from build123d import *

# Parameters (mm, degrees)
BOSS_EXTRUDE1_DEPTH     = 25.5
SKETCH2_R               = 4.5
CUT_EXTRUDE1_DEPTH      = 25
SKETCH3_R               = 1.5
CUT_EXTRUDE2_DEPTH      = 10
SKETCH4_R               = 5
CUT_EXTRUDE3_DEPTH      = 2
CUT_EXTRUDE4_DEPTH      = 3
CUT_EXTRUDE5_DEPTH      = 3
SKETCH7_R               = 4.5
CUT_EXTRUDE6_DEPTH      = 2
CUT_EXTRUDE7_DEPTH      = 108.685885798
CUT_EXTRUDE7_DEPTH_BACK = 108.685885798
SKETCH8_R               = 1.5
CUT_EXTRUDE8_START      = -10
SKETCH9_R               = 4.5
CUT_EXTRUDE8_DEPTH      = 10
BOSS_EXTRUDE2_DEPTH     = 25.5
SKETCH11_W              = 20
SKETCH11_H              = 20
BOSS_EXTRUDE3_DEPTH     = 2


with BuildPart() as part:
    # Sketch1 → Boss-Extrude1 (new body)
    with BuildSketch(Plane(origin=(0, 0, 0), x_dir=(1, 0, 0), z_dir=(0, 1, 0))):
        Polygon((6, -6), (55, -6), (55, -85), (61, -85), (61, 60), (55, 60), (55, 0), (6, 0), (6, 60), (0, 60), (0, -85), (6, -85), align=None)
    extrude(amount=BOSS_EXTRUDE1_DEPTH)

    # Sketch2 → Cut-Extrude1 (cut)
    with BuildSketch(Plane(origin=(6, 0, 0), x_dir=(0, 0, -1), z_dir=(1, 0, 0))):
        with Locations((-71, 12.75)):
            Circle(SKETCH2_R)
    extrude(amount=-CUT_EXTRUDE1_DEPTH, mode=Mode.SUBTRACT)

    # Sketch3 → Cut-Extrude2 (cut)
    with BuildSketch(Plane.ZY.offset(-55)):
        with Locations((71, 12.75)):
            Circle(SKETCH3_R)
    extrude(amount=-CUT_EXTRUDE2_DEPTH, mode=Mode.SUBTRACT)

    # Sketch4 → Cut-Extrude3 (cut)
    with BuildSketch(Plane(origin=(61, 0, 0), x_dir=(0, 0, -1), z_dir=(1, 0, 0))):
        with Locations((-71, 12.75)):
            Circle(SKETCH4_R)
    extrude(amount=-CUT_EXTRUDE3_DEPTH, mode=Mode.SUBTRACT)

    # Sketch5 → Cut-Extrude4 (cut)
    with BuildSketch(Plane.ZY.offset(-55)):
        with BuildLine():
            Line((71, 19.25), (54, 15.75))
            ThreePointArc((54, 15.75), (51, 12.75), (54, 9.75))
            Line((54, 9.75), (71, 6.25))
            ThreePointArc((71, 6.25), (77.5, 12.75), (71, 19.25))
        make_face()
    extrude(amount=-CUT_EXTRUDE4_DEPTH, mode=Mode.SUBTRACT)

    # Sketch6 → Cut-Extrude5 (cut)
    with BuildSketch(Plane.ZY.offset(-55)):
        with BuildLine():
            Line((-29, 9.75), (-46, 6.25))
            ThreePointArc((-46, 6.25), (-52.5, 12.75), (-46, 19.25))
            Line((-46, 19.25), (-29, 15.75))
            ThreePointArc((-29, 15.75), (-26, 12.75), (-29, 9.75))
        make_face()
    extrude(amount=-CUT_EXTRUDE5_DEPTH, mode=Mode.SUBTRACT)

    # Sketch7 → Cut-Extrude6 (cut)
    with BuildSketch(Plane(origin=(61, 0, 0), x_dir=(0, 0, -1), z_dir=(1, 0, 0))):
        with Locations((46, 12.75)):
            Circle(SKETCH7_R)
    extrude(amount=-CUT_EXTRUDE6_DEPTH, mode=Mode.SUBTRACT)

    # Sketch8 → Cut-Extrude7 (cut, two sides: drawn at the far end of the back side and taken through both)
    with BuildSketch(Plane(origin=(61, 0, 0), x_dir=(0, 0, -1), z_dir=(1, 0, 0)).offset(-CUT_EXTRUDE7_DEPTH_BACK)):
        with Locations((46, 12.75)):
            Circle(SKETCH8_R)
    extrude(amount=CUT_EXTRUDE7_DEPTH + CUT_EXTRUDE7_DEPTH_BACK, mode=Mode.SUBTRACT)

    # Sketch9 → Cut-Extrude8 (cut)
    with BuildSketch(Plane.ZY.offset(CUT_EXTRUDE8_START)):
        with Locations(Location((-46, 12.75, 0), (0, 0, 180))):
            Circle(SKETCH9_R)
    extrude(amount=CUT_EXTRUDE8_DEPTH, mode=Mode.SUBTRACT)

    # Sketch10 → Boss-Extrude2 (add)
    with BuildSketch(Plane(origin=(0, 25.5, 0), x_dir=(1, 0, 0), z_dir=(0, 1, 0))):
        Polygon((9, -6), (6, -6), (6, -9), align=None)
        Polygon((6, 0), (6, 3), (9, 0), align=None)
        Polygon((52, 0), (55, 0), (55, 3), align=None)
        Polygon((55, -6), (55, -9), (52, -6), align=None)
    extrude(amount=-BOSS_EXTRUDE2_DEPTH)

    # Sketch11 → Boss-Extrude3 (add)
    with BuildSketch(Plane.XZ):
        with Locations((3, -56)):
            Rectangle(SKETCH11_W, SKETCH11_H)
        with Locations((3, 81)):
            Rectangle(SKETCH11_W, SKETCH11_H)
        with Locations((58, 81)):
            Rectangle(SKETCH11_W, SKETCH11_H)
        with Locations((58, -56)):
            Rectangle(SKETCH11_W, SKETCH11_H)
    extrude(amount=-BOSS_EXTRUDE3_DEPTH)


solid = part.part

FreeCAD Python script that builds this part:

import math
import FreeCAD as App
import Part
import Sketcher

V = App.Vector
Q = App.Units.Quantity

doc = App.newDocument("Part")
body = doc.addObject("PartDesign::Body", "Body")

sketch1 = body.newObject("Sketcher::SketchObject", "Sketch")
sketch1.AttachmentSupport = (doc.getObject("XZ_Plane"), [""])
sketch1.MapMode = "FlatFace"
sketch1.addGeometry([
    Part.LineSegment(V(6, 6, 0), V(55, 6, 0)),
    Part.LineSegment(V(55, 6, 0), V(55, 85, 0)),
    Part.LineSegment(V(55, 85, 0), V(61, 85, 0)),
    Part.LineSegment(V(61, 85, 0), V(61, -60, 0)),
    Part.LineSegment(V(61, -60, 0), V(55, -60, 0)),
    Part.LineSegment(V(55, -60, 0), V(55, 0, 0)),
    Part.LineSegment(V(55, 0, 0), V(6, 0, 0)),
    Part.LineSegment(V(6, 0, 0), V(6, -60, 0)),
    Part.LineSegment(V(6, -60, 0), V(0, -60, 0)),
    Part.LineSegment(V(0, -60, 0), V(0, 85, 0)),
    Part.LineSegment(V(0, 85, 0), V(6, 85, 0)),
    Part.LineSegment(V(6, 85, 0), V(6, 6, 0)),
], False)
sketch1.addConstraint([
    Sketcher.Constraint("Coincident", 0, 2, 1, 1),
    Sketcher.Constraint("Coincident", 1, 2, 2, 1),
    Sketcher.Constraint("Coincident", 2, 2, 3, 1),
    Sketcher.Constraint("Coincident", 3, 2, 4, 1),
    Sketcher.Constraint("Coincident", 4, 2, 5, 1),
    Sketcher.Constraint("Coincident", 5, 2, 6, 1),
    Sketcher.Constraint("Coincident", 6, 2, 7, 1),
    Sketcher.Constraint("Coincident", 7, 2, 8, 1),
    Sketcher.Constraint("Coincident", 8, 2, 9, 1),
    Sketcher.Constraint("Coincident", 9, 2, 10, 1),
    Sketcher.Constraint("Coincident", 10, 2, 11, 1),
    Sketcher.Constraint("Coincident", 11, 2, 0, 1),
    Sketcher.Constraint("Horizontal", 0),
    Sketcher.Constraint("Vertical", 1),
    Sketcher.Constraint("Horizontal", 2),
    Sketcher.Constraint("Vertical", 3),
    Sketcher.Constraint("Horizontal", 4),
    Sketcher.Constraint("Vertical", 5),
    Sketcher.Constraint("Horizontal", 6),
    Sketcher.Constraint("Vertical", 7),
    Sketcher.Constraint("Horizontal", 8),
    Sketcher.Constraint("Vertical", 9),
    Sketcher.Constraint("Horizontal", 10),
    Sketcher.Constraint("Vertical", 11),
    Sketcher.Constraint("PointOnObject", 5, 2, -1),
    Sketcher.Constraint("PointOnObject", 8, 2, -2),
    Sketcher.Constraint("Horizontal", 4, 2, 7, 2),
    Sketcher.Constraint("Horizontal", 2, 2, 9, 2),
    Sketcher.Constraint("Vertical", 1, 2, 4, 2),
    Sketcher.Constraint("Vertical", 7, 2, 10, 2),
    Sketcher.Constraint("Equal", 4, 8),
    Sketcher.Constraint("DistanceX", 0, 1, 0, 2, Q("49 mm")),
    Sketcher.Constraint("DistanceX", 2, 1, 2, 2, Q("6 mm")),
    Sketcher.Constraint("DistanceY", 1, 1, 1, 2, Q("79 mm")),
    Sketcher.Constraint("DistanceY", 3, 2, 3, 1, Q("145 mm")),
    Sketcher.Constraint("DistanceY", 5, 1, 5, 2, Q("60 mm")),
])
pad1 = body.newObject("PartDesign::Pad", "Pad")
pad1.Profile = sketch1
pad1.Length = 25.5
pad1.Reversed = True

sketch2 = body.newObject("Sketcher::SketchObject", "Sketch001")
sketch2.AttachmentSupport = (doc.getObject("YZ_Plane"), [""])
sketch2.MapMode = "FlatFace"
sketch2.AttachmentOffset = App.Placement(V(0, 0, 6), App.Rotation())
sketch2.addGeometry(Part.Circle(V(12.8, 71, 0), V(0, 0, 1), 4.5), False)
sketch2.addConstraint([
    Sketcher.Constraint("Diameter", 0, Q("9 mm")),
    Sketcher.Constraint("DistanceY", -1, 1, 0, 3, Q("71 mm")),
    Sketcher.Constraint("DistanceX", -1, 1, 0, 3, Q("12.75 mm")),
])
pocket1 = body.newObject("PartDesign::Pocket", "Pocket")
pocket1.Profile = sketch2
pocket1.Length = 25

sketch3 = body.newObject("Sketcher::SketchObject", "Sketch002")
sketch3.AttachmentSupport = (doc.getObject("YZ_Plane"), [""])
sketch3.MapMode = "FlatFace"
sketch3.AttachmentOffset = App.Placement(V(0, 0, 55), App.Rotation())
sketch3.addGeometry(Part.Circle(V(12.8, 71, 0), V(0, 0, 1), 1.5), False)
sketch3.addConstraint([
    Sketcher.Constraint("Diameter", 0, Q("3 mm")),
    Sketcher.Constraint("DistanceY", -1, 1, 0, 3, Q("71 mm")),
    Sketcher.Constraint("DistanceX", -1, 1, 0, 3, Q("12.75 mm")),
])
pocket2 = body.newObject("PartDesign::Pocket", "Pocket001")
pocket2.Profile = sketch3
pocket2.Length = 10
pocket2.Reversed = True

sketch4 = body.newObject("Sketcher::SketchObject", "Sketch003")
sketch4.AttachmentSupport = (doc.getObject("YZ_Plane"), [""])
sketch4.MapMode = "FlatFace"
sketch4.AttachmentOffset = App.Placement(V(0, 0, 61), App.Rotation())
sketch4.addGeometry(Part.Circle(V(13, 71, 0), V(0, 0, 1), 5), False)
sketch4.addConstraint([
    Sketcher.Constraint("Diameter", 0, Q("10 mm")),
    Sketcher.Constraint("DistanceY", -1, 1, 0, 3, Q("71 mm")),
    Sketcher.Constraint("DistanceX", -1, 1, 0, 3, Q("12.75 mm")),
])
pocket3 = body.newObject("PartDesign::Pocket", "Pocket002")
pocket3.Profile = sketch4
pocket3.Length = 2

sketch5 = body.newObject("Sketcher::SketchObject", "Sketch004")
sketch5.AttachmentSupport = (doc.getObject("YZ_Plane"), [""])
sketch5.MapMode = "FlatFace"
sketch5.AttachmentOffset = App.Placement(V(0, 0, 55), App.Rotation())
sketch5.addGeometry([
    Part.LineSegment(V(19.2, 71, 0), V(15.8, 54, 0)),
    Part.ArcOfCircle(Part.Circle(V(12.8, 54, 0), V(0, 0, 1), 3), math.radians(180), math.radians(360)),
    Part.LineSegment(V(9.8, 54, 0), V(6.2, 71, 0)),
    Part.ArcOfCircle(Part.Circle(V(12.8, 71, 0), V(0, 0, 1), 6.5), math.radians(0), math.radians(180)),
], False)
sketch5.addConstraint([
    Sketcher.Constraint("Coincident", 0, 2, 1, 2),
    Sketcher.Constraint("Coincident", 1, 1, 2, 1),
    Sketcher.Constraint("Coincident", 2, 2, 3, 2),
    Sketcher.Constraint("Coincident", 3, 1, 0, 1),
    Sketcher.Constraint("Horizontal", 1, 3, 0, 2),
    Sketcher.Constraint("Horizontal", 0, 2, 1, 1),
    Sketcher.Constraint("Horizontal", 3, 3, 2, 2),
    Sketcher.Constraint("Horizontal", 2, 2, 3, 1),
    Sketcher.Constraint("Vertical", 1, 3, 3, 3),
    Sketcher.Constraint("Radius", 1, Q("3 mm")),
    Sketcher.Constraint("Radius", 3, Q("6.5 mm")),
    Sketcher.Constraint("DistanceY", -1, 1, 1, 3, Q("54 mm")),
    Sketcher.Constraint("DistanceY", -1, 1, 3, 3, Q("71 mm")),
    Sketcher.Constraint("DistanceX", -1, 1, 1, 3, Q("12.75 mm")),
])
pocket4 = body.newObject("PartDesign::Pocket", "Pocket003")
pocket4.Profile = sketch5
pocket4.Length = 3
pocket4.Reversed = True

sketch6 = body.newObject("Sketcher::SketchObject", "Sketch005")
sketch6.AttachmentSupport = (doc.getObject("YZ_Plane"), [""])
sketch6.MapMode = "FlatFace"
sketch6.AttachmentOffset = App.Placement(V(0, 0, 55), App.Rotation())
sketch6.addGeometry([
    Part.LineSegment(V(6.2, -46, 0), V(9.8, -29, 0)),
    Part.ArcOfCircle(Part.Circle(V(12.8, -29, 0), V(0, 0, 1), 3), math.radians(0), math.radians(180)),
    Part.LineSegment(V(15.8, -29, 0), V(19.2, -46, 0)),
    Part.ArcOfCircle(Part.Circle(V(12.8, -46, 0), V(0, 0, 1), 6.5), math.radians(180), math.radians(360)),
], False)
sketch6.addConstraint([
    Sketcher.Constraint("Coincident", 0, 2, 1, 2),
    Sketcher.Constraint("Coincident", 1, 1, 2, 1),
    Sketcher.Constraint("Coincident", 2, 2, 3, 2),
    Sketcher.Constraint("Coincident", 3, 1, 0, 1),
    Sketcher.Constraint("Horizontal", 1, 3, 0, 2),
    Sketcher.Constraint("Horizontal", 0, 2, 1, 1),
    Sketcher.Constraint("Horizontal", 3, 3, 2, 2),
    Sketcher.Constraint("Horizontal", 2, 2, 3, 1),
    Sketcher.Constraint("Vertical", 1, 3, 3, 3),
    Sketcher.Constraint("Radius", 1, Q("3 mm")),
    Sketcher.Constraint("Radius", 3, Q("6.5 mm")),
    Sketcher.Constraint("DistanceY", 1, 3, -1, 1, Q("29 mm")),
    Sketcher.Constraint("DistanceY", 3, 3, -1, 1, Q("46 mm")),
    Sketcher.Constraint("DistanceX", -1, 1, 1, 3, Q("12.75 mm")),
])
pocket5 = body.newObject("PartDesign::Pocket", "Pocket004")
pocket5.Profile = sketch6
pocket5.Length = 3
pocket5.Reversed = True

sketch7 = body.newObject("Sketcher::SketchObject", "Sketch006")
sketch7.AttachmentSupport = (doc.getObject("YZ_Plane"), [""])
sketch7.MapMode = "FlatFace"
sketch7.AttachmentOffset = App.Placement(V(0, 0, 61), App.Rotation())
sketch7.addGeometry(Part.Circle(V(12.8, -46, 0), V(0, 0, 1), 4.5), False)
sketch7.addConstraint([
    Sketcher.Constraint("Diameter", 0, Q("9 mm")),
    Sketcher.Constraint("DistanceY", 0, 3, -1, 1, Q("46 mm")),
    Sketcher.Constraint("DistanceX", -1, 1, 0, 3, Q("12.75 mm")),
])
pocket6 = body.newObject("PartDesign::Pocket", "Pocket005")
pocket6.Profile = sketch7
pocket6.Length = 2

sketch8 = body.newObject("Sketcher::SketchObject", "Sketch007")
sketch8.AttachmentSupport = (doc.getObject("YZ_Plane"), [""])
sketch8.MapMode = "FlatFace"
sketch8.AttachmentOffset = App.Placement(V(0, 0, 61), App.Rotation())
sketch8.addGeometry(Part.Circle(V(12.8, -46, 0), V(0, 0, 1), 1.5), False)
sketch8.addConstraint([
    Sketcher.Constraint("Diameter", 0, Q("3 mm")),
    Sketcher.Constraint("DistanceY", 0, 3, -1, 1, Q("46 mm")),
    Sketcher.Constraint("DistanceX", -1, 1, 0, 3, Q("12.75 mm")),
])
pocket7 = body.newObject("PartDesign::Pocket", "Pocket006")
pocket7.Profile = sketch8
pocket7.Type = "ThroughAll"
pocket7.Midplane = True

sketch9 = body.newObject("Sketcher::SketchObject", "Sketch008")
sketch9.AttachmentSupport = (doc.getObject("YZ_Plane"), [""])
sketch9.MapMode = "FlatFace"
sketch9.AttachmentOffset = App.Placement(V(0, 0, 10), App.Rotation())
sketch9.addGeometry(Part.Circle(V(12.8, -46, 0), V(0, 0, 1), 4.5), False)
sketch9.addConstraint([
    Sketcher.Constraint("Diameter", 0, Q("9 mm")),
    Sketcher.Constraint("DistanceY", 0, 3, -1, 1, Q("46 mm")),
    Sketcher.Constraint("DistanceX", -1, 1, 0, 3, Q("12.75 mm")),
])
pocket8 = body.newObject("PartDesign::Pocket", "Pocket007")
pocket8.Profile = sketch9
pocket8.Length = 10

sketch10 = body.newObject("Sketcher::SketchObject", "Sketch009")
sketch10.AttachmentSupport = (doc.getObject("XZ_Plane"), [""])
sketch10.MapMode = "FlatFace"
sketch10.AttachmentOffset = App.Placement(V(0, 0, -25.5), App.Rotation())
sketch10.addGeometry([
    Part.LineSegment(V(9, 6, 0), V(6, 6, 0)),
    Part.LineSegment(V(6, 6, 0), V(6, 9, 0)),
    Part.LineSegment(V(6, 9, 0), V(9, 6, 0)),
    Part.LineSegment(V(6, -3, 0), V(6, 0, 0)),
    Part.LineSegment(V(6, 0, 0), V(9, 0, 0)),
    Part.LineSegment(V(9, 0, 0), V(6, -3, 0)),
    Part.LineSegment(V(52, 0, 0), V(55, 0, 0)),
    Part.LineSegment(V(55, 0, 0), V(55, -3, 0)),
    Part.LineSegment(V(55, -3, 0), V(52, 0, 0)),
    Part.LineSegment(V(55, 9, 0), V(55, 6, 0)),
    Part.LineSegment(V(55, 6, 0), V(52, 6, 0)),
    Part.LineSegment(V(52, 6, 0), V(55, 9, 0)),
], False)
sketch10.addConstraint([
    Sketcher.Constraint("Coincident", 0, 2, 1, 1),
    Sketcher.Constraint("Coincident", 1, 2, 2, 1),
    Sketcher.Constraint("Coincident", 2, 2, 0, 1),
    Sketcher.Constraint("Coincident", 3, 2, 4, 1),
    Sketcher.Constraint("Coincident", 4, 2, 5, 1),
    Sketcher.Constraint("Coincident", 5, 2, 3, 1),
    Sketcher.Constraint("Coincident", 6, 2, 7, 1),
    Sketcher.Constraint("Coincident", 7, 2, 8, 1),
    Sketcher.Constraint("Coincident", 8, 2, 6, 1),
    Sketcher.Constraint("Coincident", 9, 2, 10, 1),
    Sketcher.Constraint("Coincident", 10, 2, 11, 1),
    Sketcher.Constraint("Coincident", 11, 2, 9, 1),
    Sketcher.Constraint("Horizontal", 0),
    Sketcher.Constraint("Vertical", 1),
    Sketcher.Constraint("Vertical", 3),
    Sketcher.Constraint("Horizontal", 4),
    Sketcher.Constraint("Horizontal", 6),
    Sketcher.Constraint("Vertical", 7),
    Sketcher.Constraint("Vertical", 9),
    Sketcher.Constraint("Horizontal", 10),
    Sketcher.Constraint("PointOnObject", 3, 2, -1),
    Sketcher.Constraint("PointOnObject", 6, 2, -1),
    Sketcher.Constraint("Perpendicular", 2, 5),
    Sketcher.Constraint("Perpendicular", 5, 8),
    Sketcher.Constraint("Perpendicular", 8, 11),
    Sketcher.Constraint("Horizontal", 5, 2, 7, 2),
    Sketcher.Constraint("Horizontal", 2, 2, 9, 2),
    Sketcher.Constraint("Horizontal", 1, 2, 11, 2),
    Sketcher.Constraint("Vertical", 1, 2, 3, 2),
    Sketcher.Constraint("Vertical", 2, 2, 4, 2),
    Sketcher.Constraint("Vertical", 7, 2, 9, 2),
    Sketcher.Constraint("Vertical", 8, 2, 10, 2),
    Sketcher.Constraint("DistanceX", 0, 2, 0, 1, Q("3 mm")),
    Sketcher.Constraint("DistanceX", -1, 1, 0, 2, Q("6 mm")),
    Sketcher.Constraint("DistanceY", -1, 1, 0, 2, Q("6 mm")),
    Sketcher.Constraint("DistanceX", -1, 1, 6, 2, Q("55 mm")),
])
pad2 = body.newObject("PartDesign::Pad", "Pad001")
pad2.Profile = sketch10
pad2.Length = 25.5

sketch11 = body.newObject("Sketcher::SketchObject", "Sketch010")
sketch11.AttachmentSupport = (doc.getObject("XZ_Plane"), [""])
sketch11.MapMode = "FlatFace"
sketch11.addGeometry([
    Part.LineSegment(V(-7, -46, 0), V(-7, -66, 0)),
    Part.LineSegment(V(-7, -66, 0), V(13, -66, 0)),
    Part.LineSegment(V(13, -66, 0), V(13, -46, 0)),
    Part.LineSegment(V(13, -46, 0), V(-7, -46, 0)),
    Part.LineSegment(V(-7, 91, 0), V(-7, 71, 0)),
    Part.LineSegment(V(-7, 71, 0), V(13, 71, 0)),
    Part.LineSegment(V(13, 71, 0), V(13, 91, 0)),
    Part.LineSegment(V(13, 91, 0), V(-7, 91, 0)),
    Part.LineSegment(V(48, 91, 0), V(48, 71, 0)),
    Part.LineSegment(V(48, 71, 0), V(68, 71, 0)),
    Part.LineSegment(V(68, 71, 0), V(68, 91, 0)),
    Part.LineSegment(V(68, 91, 0), V(48, 91, 0)),
    Part.LineSegment(V(48, -46, 0), V(48, -66, 0)),
    Part.LineSegment(V(48, -66, 0), V(68, -66, 0)),
    Part.LineSegment(V(68, -66, 0), V(68, -46, 0)),
    Part.LineSegment(V(68, -46, 0), V(48, -46, 0)),
], False)
sketch11.addConstraint([
    Sketcher.Constraint("Coincident", 0, 2, 1, 1),
    Sketcher.Constraint("Coincident", 1, 2, 2, 1),
    Sketcher.Constraint("Coincident", 2, 2, 3, 1),
    Sketcher.Constraint("Coincident", 3, 2, 0, 1),
    Sketcher.Constraint("Coincident", 4, 2, 5, 1),
    Sketcher.Constraint("Coincident", 5, 2, 6, 1),
    Sketcher.Constraint("Coincident", 6, 2, 7, 1),
    Sketcher.Constraint("Coincident", 7, 2, 4, 1),
    Sketcher.Constraint("Coincident", 8, 2, 9, 1),
    Sketcher.Constraint("Coincident", 9, 2, 10, 1),
    Sketcher.Constraint("Coincident", 10, 2, 11, 1),
    Sketcher.Constraint("Coincident", 11, 2, 8, 1),
    Sketcher.Constraint("Coincident", 12, 2, 13, 1),
    Sketcher.Constraint("Coincident", 13, 2, 14, 1),
    Sketcher.Constraint("Coincident", 14, 2, 15, 1),
    Sketcher.Constraint("Coincident", 15, 2, 12, 1),
    Sketcher.Constraint("Vertical", 0),
    Sketcher.Constraint("Horizontal", 1),
    Sketcher.Constraint("Vertical", 2),
    Sketcher.Constraint("Horizontal", 3),
    Sketcher.Constraint("Vertical", 4),
    Sketcher.Constraint("Horizontal", 5),
    Sketcher.Constraint("Vertical", 6),
    Sketcher.Constraint("Horizontal", 7),
    Sketcher.Constraint("Vertical", 8),
    Sketcher.Constraint("Horizontal", 9),
    Sketcher.Constraint("Vertical", 10),
    Sketcher.Constraint("Horizontal", 11),
    Sketcher.Constraint("Vertical", 12),
    Sketcher.Constraint("Horizontal", 13),
    Sketcher.Constraint("Vertical", 14),
    Sketcher.Constraint("Horizontal", 15),
    Sketcher.Constraint("Horizontal", 5, 2, 8, 2),
    Sketcher.Constraint("Horizontal", 7, 2, 10, 2),
    Sketcher.Constraint("Horizontal", 1, 2, 12, 2),
    Sketcher.Constraint("Horizontal", 3, 2, 14, 2),
    Sketcher.Constraint("Vertical", 3, 2, 4, 2),
    Sketcher.Constraint("Vertical", 2, 2, 5, 2),
    Sketcher.Constraint("Vertical", 11, 2, 12, 2),
    Sketcher.Constraint("Vertical", 10, 2, 13, 2),
    Sketcher.Constraint("Equal", 7, 9),
    Sketcher.Constraint("Equal", 15, 0),
    Sketcher.Constraint("Equal", 2, 4),
    Sketcher.Constraint("DistanceX", 1, 1, 1, 2, Q("20 mm")),
    Sketcher.Constraint("DistanceX", 0, 2, -1, 1, Q("7 mm")),
    Sketcher.Constraint("DistanceY", 0, 2, -1, 1, Q("66 mm")),
    Sketcher.Constraint("DistanceY", -1, 1, 4, 2, Q("71 mm")),
    Sketcher.Constraint("DistanceX", -1, 1, 8, 2, Q("48 mm")),
])
pad3 = body.newObject("PartDesign::Pad", "Pad002")
pad3.Profile = sketch11
pad3.Length = 2
pad3.Reversed = True

doc.recompute()
